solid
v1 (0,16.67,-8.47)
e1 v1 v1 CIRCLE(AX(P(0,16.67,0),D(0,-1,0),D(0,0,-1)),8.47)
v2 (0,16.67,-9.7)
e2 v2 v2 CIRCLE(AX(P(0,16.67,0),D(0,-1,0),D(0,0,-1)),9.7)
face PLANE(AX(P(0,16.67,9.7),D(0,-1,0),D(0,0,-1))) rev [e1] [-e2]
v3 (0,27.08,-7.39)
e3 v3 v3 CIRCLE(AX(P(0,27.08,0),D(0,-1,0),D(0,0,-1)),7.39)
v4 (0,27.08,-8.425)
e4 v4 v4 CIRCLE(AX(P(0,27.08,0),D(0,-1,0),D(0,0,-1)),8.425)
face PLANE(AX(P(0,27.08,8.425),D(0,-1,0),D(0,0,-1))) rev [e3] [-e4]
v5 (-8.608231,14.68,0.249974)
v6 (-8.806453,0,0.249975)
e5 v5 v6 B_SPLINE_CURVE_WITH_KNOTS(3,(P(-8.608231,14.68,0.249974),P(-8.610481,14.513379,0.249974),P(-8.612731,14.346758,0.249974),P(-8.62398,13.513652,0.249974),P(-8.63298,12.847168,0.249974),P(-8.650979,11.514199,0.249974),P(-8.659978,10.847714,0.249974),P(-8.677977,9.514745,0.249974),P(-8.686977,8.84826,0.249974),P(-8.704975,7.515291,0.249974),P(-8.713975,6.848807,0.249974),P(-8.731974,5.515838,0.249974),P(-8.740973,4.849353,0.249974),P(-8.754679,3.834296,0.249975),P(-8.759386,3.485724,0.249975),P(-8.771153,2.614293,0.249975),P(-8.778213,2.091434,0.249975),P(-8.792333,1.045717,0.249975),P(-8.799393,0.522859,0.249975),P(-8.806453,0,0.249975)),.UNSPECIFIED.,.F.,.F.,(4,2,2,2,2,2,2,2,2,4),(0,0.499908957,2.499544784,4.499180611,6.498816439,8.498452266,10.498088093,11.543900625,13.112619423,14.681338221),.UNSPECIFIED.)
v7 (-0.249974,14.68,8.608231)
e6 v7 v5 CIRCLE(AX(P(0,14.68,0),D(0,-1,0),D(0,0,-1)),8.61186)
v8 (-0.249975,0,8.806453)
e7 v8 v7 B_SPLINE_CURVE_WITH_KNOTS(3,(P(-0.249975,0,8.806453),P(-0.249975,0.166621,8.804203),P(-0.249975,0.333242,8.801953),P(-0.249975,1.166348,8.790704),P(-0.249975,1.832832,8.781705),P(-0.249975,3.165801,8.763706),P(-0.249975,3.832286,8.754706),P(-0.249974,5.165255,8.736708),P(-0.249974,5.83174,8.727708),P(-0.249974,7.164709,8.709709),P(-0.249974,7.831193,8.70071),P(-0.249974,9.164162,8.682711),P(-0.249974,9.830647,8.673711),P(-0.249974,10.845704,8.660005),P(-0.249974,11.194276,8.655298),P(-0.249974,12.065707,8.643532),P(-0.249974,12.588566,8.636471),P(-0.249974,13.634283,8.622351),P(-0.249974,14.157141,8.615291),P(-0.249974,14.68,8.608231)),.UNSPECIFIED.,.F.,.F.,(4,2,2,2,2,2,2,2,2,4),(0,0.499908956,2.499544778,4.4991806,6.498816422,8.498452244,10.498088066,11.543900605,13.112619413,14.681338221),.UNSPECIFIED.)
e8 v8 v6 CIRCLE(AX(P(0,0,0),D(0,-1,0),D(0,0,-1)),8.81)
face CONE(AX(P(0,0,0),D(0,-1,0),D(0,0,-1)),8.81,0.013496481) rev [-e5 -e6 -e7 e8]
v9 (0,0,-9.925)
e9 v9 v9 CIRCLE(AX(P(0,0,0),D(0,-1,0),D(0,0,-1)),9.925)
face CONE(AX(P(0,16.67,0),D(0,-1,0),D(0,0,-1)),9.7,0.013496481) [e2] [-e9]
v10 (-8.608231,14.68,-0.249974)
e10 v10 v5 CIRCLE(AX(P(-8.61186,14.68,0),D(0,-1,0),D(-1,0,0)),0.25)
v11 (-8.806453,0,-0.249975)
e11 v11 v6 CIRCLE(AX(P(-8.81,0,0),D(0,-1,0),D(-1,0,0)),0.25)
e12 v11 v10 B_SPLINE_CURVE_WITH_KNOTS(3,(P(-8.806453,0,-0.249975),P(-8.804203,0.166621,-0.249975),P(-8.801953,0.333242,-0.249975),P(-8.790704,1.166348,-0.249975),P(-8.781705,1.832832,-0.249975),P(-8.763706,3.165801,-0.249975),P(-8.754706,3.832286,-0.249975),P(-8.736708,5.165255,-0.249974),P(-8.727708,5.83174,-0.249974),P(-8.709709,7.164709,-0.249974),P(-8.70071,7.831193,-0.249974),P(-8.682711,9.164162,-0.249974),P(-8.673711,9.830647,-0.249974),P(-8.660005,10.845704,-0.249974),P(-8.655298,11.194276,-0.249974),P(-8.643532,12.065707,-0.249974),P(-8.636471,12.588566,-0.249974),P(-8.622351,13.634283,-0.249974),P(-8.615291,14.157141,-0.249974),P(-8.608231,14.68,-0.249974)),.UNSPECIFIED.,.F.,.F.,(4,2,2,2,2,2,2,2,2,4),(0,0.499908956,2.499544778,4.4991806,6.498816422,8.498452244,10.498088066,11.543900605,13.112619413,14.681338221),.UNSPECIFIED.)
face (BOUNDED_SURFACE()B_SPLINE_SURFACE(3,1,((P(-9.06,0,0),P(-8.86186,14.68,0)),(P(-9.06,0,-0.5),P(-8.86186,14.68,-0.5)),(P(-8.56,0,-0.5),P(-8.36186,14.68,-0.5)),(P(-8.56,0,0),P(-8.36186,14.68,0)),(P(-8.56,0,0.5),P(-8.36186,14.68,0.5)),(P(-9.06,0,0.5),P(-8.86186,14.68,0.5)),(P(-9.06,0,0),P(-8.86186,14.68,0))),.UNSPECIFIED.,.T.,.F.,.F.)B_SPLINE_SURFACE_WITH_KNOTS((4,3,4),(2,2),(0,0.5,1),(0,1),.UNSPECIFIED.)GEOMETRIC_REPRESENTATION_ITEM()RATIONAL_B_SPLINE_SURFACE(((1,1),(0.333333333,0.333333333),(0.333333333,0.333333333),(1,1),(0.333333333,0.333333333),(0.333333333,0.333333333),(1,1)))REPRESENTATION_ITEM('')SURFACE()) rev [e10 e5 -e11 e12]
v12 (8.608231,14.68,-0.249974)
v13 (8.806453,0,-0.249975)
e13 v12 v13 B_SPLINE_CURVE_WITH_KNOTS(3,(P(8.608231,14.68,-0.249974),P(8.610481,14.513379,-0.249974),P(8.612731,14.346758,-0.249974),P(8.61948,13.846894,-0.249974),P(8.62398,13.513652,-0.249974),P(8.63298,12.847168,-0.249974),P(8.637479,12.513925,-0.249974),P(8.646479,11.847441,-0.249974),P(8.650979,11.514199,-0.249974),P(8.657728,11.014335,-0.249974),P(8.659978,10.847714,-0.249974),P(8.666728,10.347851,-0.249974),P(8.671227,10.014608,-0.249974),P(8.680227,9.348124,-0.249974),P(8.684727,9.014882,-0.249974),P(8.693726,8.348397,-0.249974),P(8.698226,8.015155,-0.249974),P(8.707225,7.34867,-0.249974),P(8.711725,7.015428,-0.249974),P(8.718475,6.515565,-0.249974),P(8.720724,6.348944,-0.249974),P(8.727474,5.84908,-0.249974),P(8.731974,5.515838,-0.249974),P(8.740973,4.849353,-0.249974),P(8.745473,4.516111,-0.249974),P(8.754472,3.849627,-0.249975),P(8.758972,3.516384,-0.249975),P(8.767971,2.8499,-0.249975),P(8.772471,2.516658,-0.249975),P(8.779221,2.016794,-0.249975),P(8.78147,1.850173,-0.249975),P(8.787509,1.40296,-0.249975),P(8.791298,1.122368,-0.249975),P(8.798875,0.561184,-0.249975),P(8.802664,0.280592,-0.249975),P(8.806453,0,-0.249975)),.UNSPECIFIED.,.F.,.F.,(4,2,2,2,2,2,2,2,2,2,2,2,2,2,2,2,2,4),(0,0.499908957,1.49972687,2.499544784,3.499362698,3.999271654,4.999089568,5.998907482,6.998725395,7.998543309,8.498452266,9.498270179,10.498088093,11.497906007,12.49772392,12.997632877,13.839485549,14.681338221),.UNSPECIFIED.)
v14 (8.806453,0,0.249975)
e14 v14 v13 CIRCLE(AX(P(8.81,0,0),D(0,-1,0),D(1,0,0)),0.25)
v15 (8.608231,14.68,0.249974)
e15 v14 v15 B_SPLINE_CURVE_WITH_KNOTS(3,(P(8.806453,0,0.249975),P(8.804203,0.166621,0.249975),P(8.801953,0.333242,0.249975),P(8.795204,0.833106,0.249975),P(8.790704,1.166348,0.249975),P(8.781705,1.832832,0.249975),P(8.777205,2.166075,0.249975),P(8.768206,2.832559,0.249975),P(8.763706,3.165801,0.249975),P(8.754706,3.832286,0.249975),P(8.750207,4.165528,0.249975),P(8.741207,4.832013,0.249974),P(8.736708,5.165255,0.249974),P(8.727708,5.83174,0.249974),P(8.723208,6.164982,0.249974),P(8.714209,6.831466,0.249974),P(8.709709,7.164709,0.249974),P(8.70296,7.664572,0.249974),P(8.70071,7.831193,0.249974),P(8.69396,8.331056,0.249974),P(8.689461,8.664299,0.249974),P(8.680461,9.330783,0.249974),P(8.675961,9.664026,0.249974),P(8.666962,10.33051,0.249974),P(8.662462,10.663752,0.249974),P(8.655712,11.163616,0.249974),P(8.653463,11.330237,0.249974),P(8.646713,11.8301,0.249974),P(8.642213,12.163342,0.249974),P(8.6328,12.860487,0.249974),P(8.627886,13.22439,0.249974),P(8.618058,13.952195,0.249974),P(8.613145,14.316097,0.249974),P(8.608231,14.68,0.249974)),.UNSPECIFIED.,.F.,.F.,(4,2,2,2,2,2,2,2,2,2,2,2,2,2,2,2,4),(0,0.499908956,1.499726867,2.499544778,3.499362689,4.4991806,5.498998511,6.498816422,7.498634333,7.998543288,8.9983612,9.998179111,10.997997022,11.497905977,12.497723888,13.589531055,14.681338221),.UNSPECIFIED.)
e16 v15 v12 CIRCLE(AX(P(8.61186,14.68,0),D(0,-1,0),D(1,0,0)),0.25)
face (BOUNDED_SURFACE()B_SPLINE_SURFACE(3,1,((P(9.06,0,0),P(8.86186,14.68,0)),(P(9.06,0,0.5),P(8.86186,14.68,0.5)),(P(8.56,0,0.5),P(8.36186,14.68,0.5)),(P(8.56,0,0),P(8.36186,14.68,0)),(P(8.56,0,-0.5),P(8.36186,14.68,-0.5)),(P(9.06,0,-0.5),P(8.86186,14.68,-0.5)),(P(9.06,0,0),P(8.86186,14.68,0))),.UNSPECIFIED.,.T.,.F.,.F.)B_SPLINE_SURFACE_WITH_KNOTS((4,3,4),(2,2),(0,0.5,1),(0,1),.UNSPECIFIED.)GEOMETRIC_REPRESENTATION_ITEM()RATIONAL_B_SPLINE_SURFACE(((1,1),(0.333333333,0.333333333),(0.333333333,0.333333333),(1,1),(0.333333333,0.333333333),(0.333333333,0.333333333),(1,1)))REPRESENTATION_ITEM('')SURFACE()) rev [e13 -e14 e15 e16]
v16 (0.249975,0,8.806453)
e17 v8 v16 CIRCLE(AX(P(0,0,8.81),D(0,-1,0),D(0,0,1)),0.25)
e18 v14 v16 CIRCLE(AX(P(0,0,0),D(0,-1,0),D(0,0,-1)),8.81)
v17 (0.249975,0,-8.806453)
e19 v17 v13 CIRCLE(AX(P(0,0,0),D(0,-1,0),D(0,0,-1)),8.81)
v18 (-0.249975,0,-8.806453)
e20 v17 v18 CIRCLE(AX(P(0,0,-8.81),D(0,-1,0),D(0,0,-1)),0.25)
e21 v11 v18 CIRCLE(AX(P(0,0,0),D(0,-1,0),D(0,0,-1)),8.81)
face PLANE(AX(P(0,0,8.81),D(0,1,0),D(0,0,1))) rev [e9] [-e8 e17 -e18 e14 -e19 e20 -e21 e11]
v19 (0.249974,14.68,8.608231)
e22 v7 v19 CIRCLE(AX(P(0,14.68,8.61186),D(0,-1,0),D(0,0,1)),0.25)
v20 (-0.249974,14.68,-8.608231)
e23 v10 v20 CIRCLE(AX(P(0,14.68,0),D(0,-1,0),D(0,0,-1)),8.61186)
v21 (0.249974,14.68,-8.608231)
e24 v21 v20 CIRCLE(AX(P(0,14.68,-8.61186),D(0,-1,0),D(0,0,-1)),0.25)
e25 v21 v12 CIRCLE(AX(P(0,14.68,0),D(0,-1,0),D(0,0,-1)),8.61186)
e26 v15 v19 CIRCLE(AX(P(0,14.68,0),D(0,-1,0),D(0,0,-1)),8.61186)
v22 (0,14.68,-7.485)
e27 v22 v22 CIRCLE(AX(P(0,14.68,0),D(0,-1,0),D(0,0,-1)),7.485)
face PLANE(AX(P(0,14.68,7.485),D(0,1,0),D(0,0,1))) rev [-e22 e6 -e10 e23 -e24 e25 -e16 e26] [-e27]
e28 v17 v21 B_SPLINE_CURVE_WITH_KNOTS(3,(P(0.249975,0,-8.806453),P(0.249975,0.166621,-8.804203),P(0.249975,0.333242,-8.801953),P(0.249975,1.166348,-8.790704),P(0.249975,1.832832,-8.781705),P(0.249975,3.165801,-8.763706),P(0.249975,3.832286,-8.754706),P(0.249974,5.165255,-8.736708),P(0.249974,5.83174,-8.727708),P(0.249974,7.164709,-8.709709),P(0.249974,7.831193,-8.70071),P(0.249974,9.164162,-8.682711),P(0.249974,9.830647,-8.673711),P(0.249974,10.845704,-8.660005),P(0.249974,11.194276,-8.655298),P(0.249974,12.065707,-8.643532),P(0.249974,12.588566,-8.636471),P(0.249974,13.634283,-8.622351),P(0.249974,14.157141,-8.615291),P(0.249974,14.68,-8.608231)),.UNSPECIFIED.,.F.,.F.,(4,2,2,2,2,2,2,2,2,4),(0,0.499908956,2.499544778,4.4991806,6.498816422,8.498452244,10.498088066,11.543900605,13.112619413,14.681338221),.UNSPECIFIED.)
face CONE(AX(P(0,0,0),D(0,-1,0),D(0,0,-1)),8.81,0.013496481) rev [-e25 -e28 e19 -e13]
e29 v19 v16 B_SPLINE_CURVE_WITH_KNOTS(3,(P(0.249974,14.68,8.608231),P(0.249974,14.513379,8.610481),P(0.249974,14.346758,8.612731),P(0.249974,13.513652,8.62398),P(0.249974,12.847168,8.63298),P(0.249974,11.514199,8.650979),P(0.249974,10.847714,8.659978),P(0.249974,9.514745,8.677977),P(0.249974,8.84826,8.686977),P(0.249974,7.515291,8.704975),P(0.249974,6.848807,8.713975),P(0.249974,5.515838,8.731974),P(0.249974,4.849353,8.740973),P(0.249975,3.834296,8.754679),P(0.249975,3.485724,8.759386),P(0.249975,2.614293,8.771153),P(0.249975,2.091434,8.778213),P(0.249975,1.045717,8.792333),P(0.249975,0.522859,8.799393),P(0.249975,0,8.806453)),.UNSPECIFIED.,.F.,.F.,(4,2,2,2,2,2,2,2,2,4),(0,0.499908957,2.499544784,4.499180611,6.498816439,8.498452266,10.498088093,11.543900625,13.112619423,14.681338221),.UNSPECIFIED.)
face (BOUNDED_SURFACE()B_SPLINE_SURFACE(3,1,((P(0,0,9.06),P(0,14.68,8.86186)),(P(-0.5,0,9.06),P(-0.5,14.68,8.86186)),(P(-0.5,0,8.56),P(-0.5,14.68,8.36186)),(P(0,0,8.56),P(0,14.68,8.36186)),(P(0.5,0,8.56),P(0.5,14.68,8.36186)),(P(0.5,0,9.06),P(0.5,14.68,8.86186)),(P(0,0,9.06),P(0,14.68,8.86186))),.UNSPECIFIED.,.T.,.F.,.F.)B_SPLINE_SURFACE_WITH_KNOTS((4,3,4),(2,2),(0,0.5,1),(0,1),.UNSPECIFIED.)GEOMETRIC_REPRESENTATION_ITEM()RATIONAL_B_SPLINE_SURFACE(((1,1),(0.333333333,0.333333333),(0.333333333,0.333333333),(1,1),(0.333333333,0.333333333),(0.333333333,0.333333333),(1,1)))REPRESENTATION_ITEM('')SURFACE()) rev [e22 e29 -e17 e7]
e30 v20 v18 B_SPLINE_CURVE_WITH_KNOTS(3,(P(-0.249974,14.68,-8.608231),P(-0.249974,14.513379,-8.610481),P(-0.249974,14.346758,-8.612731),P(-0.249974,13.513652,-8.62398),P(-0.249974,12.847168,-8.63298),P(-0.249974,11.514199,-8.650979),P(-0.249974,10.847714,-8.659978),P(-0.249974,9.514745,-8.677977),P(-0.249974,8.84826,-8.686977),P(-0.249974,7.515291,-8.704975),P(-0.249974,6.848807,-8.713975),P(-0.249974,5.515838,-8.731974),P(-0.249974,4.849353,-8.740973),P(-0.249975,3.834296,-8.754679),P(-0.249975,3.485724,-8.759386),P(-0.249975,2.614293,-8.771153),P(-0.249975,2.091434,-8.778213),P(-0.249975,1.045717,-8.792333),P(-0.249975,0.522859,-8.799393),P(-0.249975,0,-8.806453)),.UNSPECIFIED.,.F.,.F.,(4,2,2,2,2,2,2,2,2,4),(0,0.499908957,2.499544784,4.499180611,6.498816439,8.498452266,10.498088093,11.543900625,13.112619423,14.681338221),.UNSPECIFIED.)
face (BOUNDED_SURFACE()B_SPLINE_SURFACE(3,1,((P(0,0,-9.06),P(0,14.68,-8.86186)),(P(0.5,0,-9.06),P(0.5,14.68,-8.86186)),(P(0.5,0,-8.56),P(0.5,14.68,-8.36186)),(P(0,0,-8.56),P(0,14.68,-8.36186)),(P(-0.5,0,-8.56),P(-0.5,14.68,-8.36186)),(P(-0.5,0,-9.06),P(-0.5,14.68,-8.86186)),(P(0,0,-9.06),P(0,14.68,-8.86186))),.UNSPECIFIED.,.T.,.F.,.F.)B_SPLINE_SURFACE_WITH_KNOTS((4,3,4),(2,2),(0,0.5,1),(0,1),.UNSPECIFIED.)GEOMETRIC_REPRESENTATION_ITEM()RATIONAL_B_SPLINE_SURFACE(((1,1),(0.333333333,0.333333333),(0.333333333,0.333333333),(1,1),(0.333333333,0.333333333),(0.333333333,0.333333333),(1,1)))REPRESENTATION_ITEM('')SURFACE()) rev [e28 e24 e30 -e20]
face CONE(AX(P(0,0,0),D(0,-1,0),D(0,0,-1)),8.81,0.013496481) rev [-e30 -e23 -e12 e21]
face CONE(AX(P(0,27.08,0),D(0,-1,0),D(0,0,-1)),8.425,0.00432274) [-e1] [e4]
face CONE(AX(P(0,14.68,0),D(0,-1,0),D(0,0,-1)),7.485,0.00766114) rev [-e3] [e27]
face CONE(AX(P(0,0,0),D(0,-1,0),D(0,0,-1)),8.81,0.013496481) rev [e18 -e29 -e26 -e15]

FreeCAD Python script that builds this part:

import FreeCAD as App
import Part
import Sketcher
Q = App.Units.Quantity

doc = App.newDocument("Part")
params = doc.addObject("Spreadsheet::Sheet", "Params")
for row, (alias, value) in enumerate([
    ("sketch1_height", "1.23 mm"),
    ("revolution_angle", "360 deg"),
    ("sketch2_diameter", "0.5 mm"),
], start=1):
    params.set(f"A{row}", alias)
    params.set(f"B{row}", "=" + value)
    params.setAlias(f"B{row}", alias)

body = doc.addObject("PartDesign::Body", "Body")

sketch1 = doc.addObject("Sketcher::SketchObject", "Sketch")
body.addObject(sketch1)
sketch1.AttachmentSupport = (doc.YZ_Plane, [""])
sketch1.MapMode = "FlatFace"
sketch1.addGeometry([
    Part.LineSegment(App.Vector(16.7, 9.7, 0), App.Vector(0, 9.9, 0)),
    Part.LineSegment(App.Vector(0, 9.9, 0), App.Vector(0, 8.8, 0)),
    Part.LineSegment(App.Vector(0, 8.8, 0), App.Vector(14.7, 8.6, 0)),
    Part.LineSegment(App.Vector(14.7, 8.6, 0), App.Vector(14.7, 7.5, 0)),
    Part.LineSegment(App.Vector(14.7, 7.5, 0), App.Vector(27.1, 7.4, 0)),
    Part.LineSegment(App.Vector(27.1, 7.4, 0), App.Vector(27.1, 8.4, 0)),
    Part.LineSegment(App.Vector(27.1, 8.4, 0), App.Vector(16.7, 8.5, 0)),
    Part.LineSegment(App.Vector(16.7, 8.5, 0), App.Vector(16.7, 9.7, 0)),
], False)
sketch1.addConstraint([
    Sketcher.Constraint("Coincident", 0, 2, 1, 1),
    Sketcher.Constraint("Coincident", 1, 2, 2, 1),
    Sketcher.Constraint("Coincident", 2, 2, 3, 1),
    Sketcher.Constraint("Coincident", 3, 2, 4, 1),
    Sketcher.Constraint("Coincident", 4, 2, 5, 1),
    Sketcher.Constraint("Coincident", 5, 2, 6, 1),
    Sketcher.Constraint("Coincident", 6, 2, 7, 1),
    Sketcher.Constraint("Coincident", 7, 2, 0, 1),
    Sketcher.Constraint("Vertical", 1),
    Sketcher.Constraint("Vertical", 3),
    Sketcher.Constraint("Vertical", 5),
    Sketcher.Constraint("Vertical", 7),
    Sketcher.Constraint("PointOnObject", 0, 2, -2),
    Sketcher.Constraint("Parallel", 0, 2),
    Sketcher.Constraint("DistanceY", 7, 1, 7, 2, Q("1.23 mm")),
    Sketcher.Constraint("DistanceY", -1, 1, 7, 2, Q("9.7 mm")),
    Sketcher.Constraint("DistanceX", 3, 2, 4, 2, Q("12.4 mm")),
    Sketcher.Constraint("DistanceY", 5, 2, 0, 2, Q("1.5 mm")),
    Sketcher.Constraint("DistanceY", 1, 2, 1, 1, Q("1.115 mm")),
    Sketcher.Constraint("DistanceY", 5, 1, 5, 2, Q("1.035 mm")),
    Sketcher.Constraint("DistanceY", -1, 1, 1, 2, Q("8.81 mm")),
    Sketcher.Constraint("DistanceX", -1, 1, 2, 2, Q("14.68 mm")),
    Sketcher.Constraint("DistanceX", -1, 1, 6, 2, Q("16.67 mm")),
    Sketcher.Constraint("DistanceY", 3, 2, 0, 2, Q("2.44 mm")),
])
sketch1.setExpression("Constraints[14]", "Params.sketch1_height")
revolution = doc.addObject("PartDesign::Revolution", "Revolution")
body.addObject(revolution)
revolution.Profile = sketch1
revolution.ReferenceAxis = (sketch1, ["H_Axis"])
revolution.setExpression("Angle", "Params.revolution_angle")

sketch2 = doc.addObject("Sketcher::SketchObject", "Sketch001")
body.addObject(sketch2)
sketch2.AttachmentSupport = (doc.XZ_Plane, [""])
sketch2.MapMode = "FlatFace"
sketch2.addGeometry(Part.Circle(App.Vector(0, -8.81, 0), App.Vector(0, 0, 1), 0.25), False)
sketch2.addConstraint([
    Sketcher.Constraint("PointOnObject", 0, 3, -2),
    Sketcher.Constraint("Diameter", 0, Q("0.5 mm")),
    Sketcher.Constraint("DistanceY", 0, 3, -1, 1, Q("8.81 mm")),
])
sketch2.setExpression("Constraints[1]", "Params.sketch2_diameter")

sketch3 = doc.addObject("Sketcher::SketchObject", "Sketch002")
body.addObject(sketch3)
sketch3.Placement = App.Placement(App.Vector(0, 0.11889, -8.808395), App.Rotation(App.Vector(0, -0.999908924, -0.013496071), App.Vector(1, 0, 0), App.Vector(0, -0.013496071, 0.999908924), "ZXY"))
sketch3.addGeometry(Part.LineSegment(App.Vector(0, 0, 0), App.Vector(-15, 0, 0)), False)
sketch3.addConstraint([
    Sketcher.Constraint("Horizontal", 0),
    Sketcher.Constraint("PointOnObject", 0, 1, -1),
    Sketcher.Constraint("DistanceX", -1, 1, 0, 1, Q("0.1189 mm")),
    Sketcher.Constraint("DistanceX", 0, 2, 0, 1, Q("14.681337 mm")),
])
doc.recompute()

additivepipe = doc.addObject("PartDesign::AdditivePipe", "AdditivePipe")
body.addObject(additivepipe)
additivepipe.Profile = sketch2
additivepipe.Spine = (sketch3, ["Edge1"])
doc.recompute()

polarpattern = doc.addObject("PartDesign::PolarPattern", "PolarPattern")
body.addObject(polarpattern)
polarpattern.Originals = [additivepipe]
polarpattern.Axis = (doc.Y_Axis, [""])
polarpattern.Angle = 360
polarpattern.Occurrences = 4
body.Tip = polarpattern

doc.recompute()
